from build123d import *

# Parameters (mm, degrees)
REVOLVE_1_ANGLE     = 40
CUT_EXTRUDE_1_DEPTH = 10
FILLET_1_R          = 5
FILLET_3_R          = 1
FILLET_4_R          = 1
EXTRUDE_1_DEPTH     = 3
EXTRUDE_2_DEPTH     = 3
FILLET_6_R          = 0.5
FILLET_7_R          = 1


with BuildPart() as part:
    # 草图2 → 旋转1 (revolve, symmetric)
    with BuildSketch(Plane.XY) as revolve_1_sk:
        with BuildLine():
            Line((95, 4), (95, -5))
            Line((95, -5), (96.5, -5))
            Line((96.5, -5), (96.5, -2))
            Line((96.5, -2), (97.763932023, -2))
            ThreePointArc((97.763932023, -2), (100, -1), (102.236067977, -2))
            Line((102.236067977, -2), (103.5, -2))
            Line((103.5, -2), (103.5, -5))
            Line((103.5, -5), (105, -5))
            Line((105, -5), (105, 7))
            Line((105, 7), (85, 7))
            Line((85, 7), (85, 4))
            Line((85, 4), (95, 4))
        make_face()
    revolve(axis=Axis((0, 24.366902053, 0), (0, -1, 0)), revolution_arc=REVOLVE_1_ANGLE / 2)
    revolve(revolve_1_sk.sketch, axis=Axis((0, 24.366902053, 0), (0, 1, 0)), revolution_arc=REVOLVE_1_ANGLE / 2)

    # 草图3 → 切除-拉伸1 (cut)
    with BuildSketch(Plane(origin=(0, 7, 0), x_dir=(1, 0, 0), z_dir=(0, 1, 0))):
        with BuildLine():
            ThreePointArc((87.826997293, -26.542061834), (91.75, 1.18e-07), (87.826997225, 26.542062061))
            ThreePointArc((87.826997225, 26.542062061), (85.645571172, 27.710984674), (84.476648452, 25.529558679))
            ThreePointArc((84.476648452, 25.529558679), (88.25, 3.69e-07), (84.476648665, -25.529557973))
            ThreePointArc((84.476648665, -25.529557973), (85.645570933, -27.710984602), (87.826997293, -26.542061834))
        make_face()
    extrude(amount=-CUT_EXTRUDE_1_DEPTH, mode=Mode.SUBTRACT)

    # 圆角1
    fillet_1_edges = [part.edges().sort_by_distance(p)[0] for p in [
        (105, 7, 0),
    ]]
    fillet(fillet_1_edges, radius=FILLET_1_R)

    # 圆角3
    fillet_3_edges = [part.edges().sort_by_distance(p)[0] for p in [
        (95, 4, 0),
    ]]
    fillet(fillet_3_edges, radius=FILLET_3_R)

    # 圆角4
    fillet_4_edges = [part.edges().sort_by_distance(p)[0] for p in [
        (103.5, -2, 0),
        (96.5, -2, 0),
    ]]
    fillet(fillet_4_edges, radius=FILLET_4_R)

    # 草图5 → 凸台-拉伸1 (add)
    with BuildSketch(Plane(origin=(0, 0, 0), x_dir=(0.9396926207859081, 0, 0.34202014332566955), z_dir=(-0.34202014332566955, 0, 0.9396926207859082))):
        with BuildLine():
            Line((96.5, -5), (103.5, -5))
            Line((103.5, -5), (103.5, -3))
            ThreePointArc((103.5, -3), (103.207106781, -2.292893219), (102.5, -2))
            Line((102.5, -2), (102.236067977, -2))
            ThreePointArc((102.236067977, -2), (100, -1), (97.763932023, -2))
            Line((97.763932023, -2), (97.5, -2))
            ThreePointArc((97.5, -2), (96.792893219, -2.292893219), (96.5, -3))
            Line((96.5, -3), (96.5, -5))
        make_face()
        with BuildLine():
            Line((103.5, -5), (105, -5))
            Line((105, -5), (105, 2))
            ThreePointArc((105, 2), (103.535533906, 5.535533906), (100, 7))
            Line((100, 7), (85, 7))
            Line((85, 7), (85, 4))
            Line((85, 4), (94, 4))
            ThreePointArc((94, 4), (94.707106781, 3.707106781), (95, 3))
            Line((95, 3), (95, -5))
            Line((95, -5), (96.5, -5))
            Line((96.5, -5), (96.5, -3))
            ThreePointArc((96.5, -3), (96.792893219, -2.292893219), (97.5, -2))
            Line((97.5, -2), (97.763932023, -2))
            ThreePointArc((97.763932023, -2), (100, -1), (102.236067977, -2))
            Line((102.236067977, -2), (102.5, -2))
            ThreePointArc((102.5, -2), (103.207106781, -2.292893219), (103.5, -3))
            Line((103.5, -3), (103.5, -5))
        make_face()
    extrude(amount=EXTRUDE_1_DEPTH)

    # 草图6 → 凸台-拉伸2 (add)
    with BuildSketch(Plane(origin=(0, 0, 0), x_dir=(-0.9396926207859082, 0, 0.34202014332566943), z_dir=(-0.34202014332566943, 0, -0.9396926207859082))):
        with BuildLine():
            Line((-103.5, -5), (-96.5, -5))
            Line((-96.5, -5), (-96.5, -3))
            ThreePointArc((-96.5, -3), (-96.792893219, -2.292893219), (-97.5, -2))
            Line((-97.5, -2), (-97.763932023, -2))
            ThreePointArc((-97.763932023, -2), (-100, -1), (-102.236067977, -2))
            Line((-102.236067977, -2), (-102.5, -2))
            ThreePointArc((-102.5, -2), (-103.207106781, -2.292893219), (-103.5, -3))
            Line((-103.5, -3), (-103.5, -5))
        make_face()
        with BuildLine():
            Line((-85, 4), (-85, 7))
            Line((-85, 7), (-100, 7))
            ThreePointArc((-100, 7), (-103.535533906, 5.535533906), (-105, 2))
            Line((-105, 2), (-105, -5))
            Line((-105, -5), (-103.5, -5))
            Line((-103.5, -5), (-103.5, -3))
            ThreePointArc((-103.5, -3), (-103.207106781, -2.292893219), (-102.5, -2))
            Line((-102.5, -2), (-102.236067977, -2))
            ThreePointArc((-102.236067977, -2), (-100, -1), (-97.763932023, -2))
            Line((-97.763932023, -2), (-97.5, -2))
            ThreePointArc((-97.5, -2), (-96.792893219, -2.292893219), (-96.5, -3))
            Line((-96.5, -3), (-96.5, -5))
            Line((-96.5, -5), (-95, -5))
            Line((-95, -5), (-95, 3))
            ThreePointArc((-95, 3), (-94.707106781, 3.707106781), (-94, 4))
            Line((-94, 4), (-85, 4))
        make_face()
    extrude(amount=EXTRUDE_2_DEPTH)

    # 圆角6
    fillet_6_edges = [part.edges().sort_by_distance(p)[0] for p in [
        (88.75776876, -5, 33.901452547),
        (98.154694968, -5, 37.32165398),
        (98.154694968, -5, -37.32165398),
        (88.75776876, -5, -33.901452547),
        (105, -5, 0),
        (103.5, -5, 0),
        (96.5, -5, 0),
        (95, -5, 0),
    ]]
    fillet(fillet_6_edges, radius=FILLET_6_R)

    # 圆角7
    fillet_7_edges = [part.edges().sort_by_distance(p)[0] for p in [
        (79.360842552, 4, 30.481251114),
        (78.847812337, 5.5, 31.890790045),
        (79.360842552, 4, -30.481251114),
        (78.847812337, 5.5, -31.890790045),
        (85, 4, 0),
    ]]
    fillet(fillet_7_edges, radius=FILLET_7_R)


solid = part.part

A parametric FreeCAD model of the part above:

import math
import FreeCAD as App
import Part
import Sketcher

V = App.Vector


def edges_at(feature, points):
    """Names of the edges that pass closest to the given points."""
    edges = feature.Shape.Edges
    near = lambda p: min(range(len(edges)), key=lambda i: edges[i].distToShape(Part.Vertex(*p))[0])
    return sorted({f"Edge{near(p) + 1}" for p in points})

doc = App.newDocument("Part")
params = doc.addObject("Spreadsheet::Sheet", "Params")
for row, (alias, value) in enumerate([
    ("sketch1_radius", "3 mm"),
    ("sketch1_width", "20 mm"),
    ("sketch1_width2", "10 mm"),
    ("sketch1_height", "9 mm"),
    ("sketch1_height2", "3 mm"),
    ("revolution_angle", "20 deg"),
    ("sketch2_radius", "3 mm"),
    ("sketch2_width", "20 mm"),
    ("sketch2_width2", "10 mm"),
    ("sketch2_height", "9 mm"),
    ("sketch2_height2", "3 mm"),
    ("revolution2_angle", "20 deg"),
    ("sketch3_radius", "91.75 mm"),
    ("sketch3_radius2", "1.75 mm"),
    ("pocket1_length", "10 mm"),
    ("fillet_radius", "5 mm"),
    ("fillet2_radius", "1 mm"),
    ("fillet3_radius", "1 mm"),
    ("sketch4_radius", "5 mm"),
    ("sketch4_radius2", "1 mm"),
    ("sketch4_width", "15 mm"),
    ("sketch4_width2", "9 mm"),
    ("sketch4_height", "7 mm"),
    ("pad1_length", "3 mm"),
    ("sketch5_radius", "1 mm"),
    ("sketch5_radius2", "5 mm"),
    ("sketch5_width", "9 mm"),
    ("sketch5_width2", "15 mm"),
    ("sketch5_height", "8 mm"),
    ("pad2_length", "3 mm"),
    ("fillet4_radius", "0.5 mm"),
    ("fillet5_radius", "1 mm"),
], start=1):
    params.set(f"A{row}", alias)
    params.set(f"B{row}", "=" + value)
    params.setAlias(f"B{row}", alias)

body = doc.addObject("PartDesign::Body", "Body")

# Sketch on XY plane
sketch1 = body.newObject("Sketcher::SketchObject", "Sketch")
sketch1.AttachmentSupport = (doc.getObject("XY_Plane"), [""])
sketch1.MapMode = "FlatFace"
sketch1.addGeometry(Part.LineSegment(V(95, 4, 0), V(95, -5, 0)), False)
sketch1.addGeometry(Part.LineSegment(V(95, -5, 0), V(96.5, -5, 0)), False)
sketch1.addGeometry(Part.LineSegment(V(96.5, -5, 0), V(96.5, -2, 0)), False)
sketch1.addGeometry(Part.LineSegment(V(96.5, -2, 0), V(97.8, -2, 0)), False)
sketch1.addGeometry(Part.ArcOfCircle(Part.Circle(V(100, -4, 0), V(0, 0, 1), 3), math.radians(42), math.radians(138)), False)
sketch1.addGeometry(Part.LineSegment(V(102.2, -2, 0), V(103.5, -2, 0)), False)
sketch1.addGeometry(Part.LineSegment(V(103.5, -2, 0), V(103.5, -5, 0)), False)
sketch1.addGeometry(Part.LineSegment(V(103.5, -5, 0), V(105, -5, 0)), False)
sketch1.addGeometry(Part.LineSegment(V(105, -5, 0), V(105, 7, 0)), False)
sketch1.addGeometry(Part.LineSegment(V(105, 7, 0), V(85, 7, 0)), False)
sketch1.addGeometry(Part.LineSegment(V(85, 7, 0), V(85, 4, 0)), False)
sketch1.addGeometry(Part.LineSegment(V(85, 4, 0), V(95, 4, 0)), False)
sketch1.addConstraint(Sketcher.Constraint("Coincident", 0, 2, 1, 1))
sketch1.addConstraint(Sketcher.Constraint("Coincident", 1, 2, 2, 1))
sketch1.addConstraint(Sketcher.Constraint("Coincident", 2, 2, 3, 1))
sketch1.addConstraint(Sketcher.Constraint("Coincident", 3, 2, 4, 2))
sketch1.addConstraint(Sketcher.Constraint("Coincident", 4, 1, 5, 1))
sketch1.addConstraint(Sketcher.Constraint("Coincident", 5, 2, 6, 1))
sketch1.addConstraint(Sketcher.Constraint("Coincident", 6, 2, 7, 1))
sketch1.addConstraint(Sketcher.Constraint("Coincident", 7, 2, 8, 1))
sketch1.addConstraint(Sketcher.Constraint("Coincident", 8, 2, 9, 1))
sketch1.addConstraint(Sketcher.Constraint("Coincident", 9, 2, 10, 1))
sketch1.addConstraint(Sketcher.Constraint("Coincident", 10, 2, 11, 1))
sketch1.addConstraint(Sketcher.Constraint("Coincident", 11, 2, 0, 1))
sketch1.addConstraint(Sketcher.Constraint("Vertical", 0))
sketch1.addConstraint(Sketcher.Constraint("Horizontal", 1))
sketch1.addConstraint(Sketcher.Constraint("Vertical", 2))
sketch1.addConstraint(Sketcher.Constraint("Horizontal", 3))
sketch1.addConstraint(Sketcher.Constraint("Horizontal", 5))
sketch1.addConstraint(Sketcher.Constraint("Vertical", 6))
sketch1.addConstraint(Sketcher.Constraint("Horizontal", 7))
sketch1.addConstraint(Sketcher.Constraint("Vertical", 8))
sketch1.addConstraint(Sketcher.Constraint("Horizontal", 9))
sketch1.addConstraint(Sketcher.Constraint("Vertical", 10))
sketch1.addConstraint(Sketcher.Constraint("Horizontal", 11))
sketch1.addConstraint(Sketcher.Constraint("Horizontal", 3, 2, 4, 1))
sketch1.addConstraint(Sketcher.Constraint("Horizontal", 1, 2, 6, 2))
sketch1.addConstraint(Sketcher.Constraint("Equal", 3, 5))
sketch1.addConstraint(Sketcher.Constraint("Equal", 1, 7))
sketch1.addConstraint(Sketcher.Constraint("Equal", 6, 10))
sketch1.addConstraint(Sketcher.Constraint("Radius", 4, 3.0))
sketch1.addConstraint(Sketcher.Constraint("DistanceX", 9, 2, 9, 1, 20.0))
sketch1.addConstraint(Sketcher.Constraint("DistanceX", 11, 1, 11, 2, 10.0))
sketch1.addConstraint(Sketcher.Constraint("DistanceY", 0, 2, 0, 1, 9.0))
sketch1.addConstraint(Sketcher.Constraint("DistanceY", 2, 1, 2, 2, 3.0))
sketch1.addConstraint(Sketcher.Constraint("DistanceX", 1, 1, 1, 2, 1.5))
sketch1.addConstraint(Sketcher.Constraint("DistanceX", -1, 1, 4, 3, 100.0))
sketch1.addConstraint(Sketcher.Constraint("DistanceY", 4, 3, -1, 1, 4.0))
sketch1.addConstraint(Sketcher.Constraint("DistanceY", 0, 2, -1, 1, 5.0))
sketch1.setExpression("Constraints[28]", "Params.sketch1_radius")
sketch1.setExpression("Constraints[29]", "Params.sketch1_width")
sketch1.setExpression("Constraints[30]", "Params.sketch1_width2")
sketch1.setExpression("Constraints[31]", "Params.sketch1_height")
sketch1.setExpression("Constraints[32]", "Params.sketch1_height2")
revolution = body.newObject("PartDesign::Revolution", "Revolution")
revolution.Profile = sketch1
revolution.ReferenceAxis = (sketch1, ["V_Axis"])
revolution.setExpression("Angle", "Params.revolution_angle")
revolution.Reversed = True

# Sketch on XY plane
sketch2 = body.newObject("Sketcher::SketchObject", "Sketch001")
sketch2.AttachmentSupport = (doc.getObject("XY_Plane"), [""])
sketch2.MapMode = "FlatFace"
sketch2.addGeometry(Part.LineSegment(V(95, 4, 0), V(95, -5, 0)), False)
sketch2.addGeometry(Part.LineSegment(V(95, -5, 0), V(96.5, -5, 0)), False)
sketch2.addGeometry(Part.LineSegment(V(96.5, -5, 0), V(96.5, -2, 0)), False)
sketch2.addGeometry(Part.LineSegment(V(96.5, -2, 0), V(97.8, -2, 0)), False)
sketch2.addGeometry(Part.ArcOfCircle(Part.Circle(V(100, -4, 0), V(0, 0, 1), 3), math.radians(42), math.radians(138)), False)
sketch2.addGeometry(Part.LineSegment(V(102.2, -2, 0), V(103.5, -2, 0)), False)
sketch2.addGeometry(Part.LineSegment(V(103.5, -2, 0), V(103.5, -5, 0)), False)
sketch2.addGeometry(Part.LineSegment(V(103.5, -5, 0), V(105, -5, 0)), False)
sketch2.addGeometry(Part.LineSegment(V(105, -5, 0), V(105, 7, 0)), False)
sketch2.addGeometry(Part.LineSegment(V(105, 7, 0), V(85, 7, 0)), False)
sketch2.addGeometry(Part.LineSegment(V(85, 7, 0), V(85, 4, 0)), False)
sketch2.addGeometry(Part.LineSegment(V(85, 4, 0), V(95, 4, 0)), False)
sketch2.addConstraint(Sketcher.Constraint("Coincident", 0, 2, 1, 1))
sketch2.addConstraint(Sketcher.Constraint("Coincident", 1, 2, 2, 1))
sketch2.addConstraint(Sketcher.Constraint("Coincident", 2, 2, 3, 1))
sketch2.addConstraint(Sketcher.Constraint("Coincident", 3, 2, 4, 2))
sketch2.addConstraint(Sketcher.Constraint("Coincident", 4, 1, 5, 1))
sketch2.addConstraint(Sketcher.Constraint("Coincident", 5, 2, 6, 1))
sketch2.addConstraint(Sketcher.Constraint("Coincident", 6, 2, 7, 1))
sketch2.addConstraint(Sketcher.Constraint("Coincident", 7, 2, 8, 1))
sketch2.addConstraint(Sketcher.Constraint("Coincident", 8, 2, 9, 1))
sketch2.addConstraint(Sketcher.Constraint("Coincident", 9, 2, 10, 1))
sketch2.addConstraint(Sketcher.Constraint("Coincident", 10, 2, 11, 1))
sketch2.addConstraint(Sketcher.Constraint("Coincident", 11, 2, 0, 1))
sketch2.addConstraint(Sketcher.Constraint("Vertical", 0))
sketch2.addConstraint(Sketcher.Constraint("Horizontal", 1))
sketch2.addConstraint(Sketcher.Constraint("Vertical", 2))
sketch2.addConstraint(Sketcher.Constraint("Horizontal", 3))
sketch2.addConstraint(Sketcher.Constraint("Horizontal", 5))
sketch2.addConstraint(Sketcher.Constraint("Vertical", 6))
sketch2.addConstraint(Sketcher.Constraint("Horizontal", 7))
sketch2.addConstraint(Sketcher.Constraint("Vertical", 8))
sketch2.addConstraint(Sketcher.Constraint("Horizontal", 9))
sketch2.addConstraint(Sketcher.Constraint("Vertical", 10))
sketch2.addConstraint(Sketcher.Constraint("Horizontal", 11))
sketch2.addConstraint(Sketcher.Constraint("Horizontal", 3, 2, 4, 1))
sketch2.addConstraint(Sketcher.Constraint("Horizontal", 1, 2, 6, 2))
sketch2.addConstraint(Sketcher.Constraint("Equal", 3, 5))
sketch2.addConstraint(Sketcher.Constraint("Equal", 1, 7))
sketch2.addConstraint(Sketcher.Constraint("Equal", 6, 10))
sketch2.addConstraint(Sketcher.Constraint("Radius", 4, 3.0))
sketch2.addConstraint(Sketcher.Constraint("DistanceX", 9, 2, 9, 1, 20.0))
sketch2.addConstraint(Sketcher.Constraint("DistanceX", 11, 1, 11, 2, 10.0))
sketch2.addConstraint(Sketcher.Constraint("DistanceY", 0, 2, 0, 1, 9.0))
sketch2.addConstraint(Sketcher.Constraint("DistanceY", 2, 1, 2, 2, 3.0))
sketch2.addConstraint(Sketcher.Constraint("DistanceX", 1, 1, 1, 2, 1.5))
sketch2.addConstraint(Sketcher.Constraint("DistanceX", -1, 1, 4, 3, 100.0))
sketch2.addConstraint(Sketcher.Constraint("DistanceY", 4, 3, -1, 1, 4.0))
sketch2.addConstraint(Sketcher.Constraint("DistanceY", 0, 2, -1, 1, 5.0))
sketch2.setExpression("Constraints[28]", "Params.sketch2_radius")
sketch2.setExpression("Constraints[29]", "Params.sketch2_width")
sketch2.setExpression("Constraints[30]", "Params.sketch2_width2")
sketch2.setExpression("Constraints[31]", "Params.sketch2_height")
sketch2.setExpression("Constraints[32]", "Params.sketch2_height2")
revolution2 = body.newObject("PartDesign::Revolution", "Revolution001")
revolution2.Profile = sketch2
revolution2.ReferenceAxis = (sketch2, ["V_Axis"])
revolution2.setExpression("Angle", "Params.revolution2_angle")

# Sketch on XZ plane
sketch3 = body.newObject("Sketcher::SketchObject", "Sketch002")
sketch3.AttachmentSupport = (doc.getObject("XZ_Plane"), [""])
sketch3.MapMode = "FlatFace"
sketch3.AttachmentOffset = App.Placement(V(0, 0, -7), App.Rotation())
sketch3.addGeometry(Part.ArcOfCircle(Part.Circle(V(0, 0, 0), V(0, 0, 1), 91.7), math.radians(-17), math.radians(17)), False)
sketch3.addGeometry(Part.ArcOfCircle(Part.Circle(V(86.2, -26, 0), V(0, 0, 1), 1.8), math.radians(163), math.radians(343)), False)
sketch3.addGeometry(Part.ArcOfCircle(Part.Circle(V(0, 0, 0), V(0, 0, 1), 88.2), math.radians(-17), math.radians(17)), False)
sketch3.addGeometry(Part.ArcOfCircle(Part.Circle(V(86.2, 26, 0), V(0, 0, 1), 1.8), math.radians(17), math.radians(197)), False)
sketch3.addConstraint(Sketcher.Constraint("Tangent", 0, 1, 1, 2))
sketch3.addConstraint(Sketcher.Constraint("Tangent", 1, 1, 2, 1))
sketch3.addConstraint(Sketcher.Constraint("Tangent", 2, 2, 3, 2))
sketch3.addConstraint(Sketcher.Constraint("Tangent", 3, 1, 0, 2))
sketch3.addConstraint(Sketcher.Constraint("Coincident", 0, 3, -1, 1))
sketch3.addConstraint(Sketcher.Constraint("Coincident", 2, 3, -1, 1))
sketch3.addConstraint(Sketcher.Constraint("Vertical", 1, 3, 3, 3))
sketch3.addConstraint(Sketcher.Constraint("Radius", 0, 91.75))
sketch3.addConstraint(Sketcher.Constraint("Radius", 1, 1.75))
sketch3.addConstraint(Sketcher.Constraint("DistanceY", 1, 3, -1, 1, 26.03581))
sketch3.setExpression("Constraints[7]", "Params.sketch3_radius")
sketch3.setExpression("Constraints[8]", "Params.sketch3_radius2")
pocket1 = body.newObject("PartDesign::Pocket", "Pocket")
pocket1.Profile = sketch3
pocket1.setExpression("Length", "Params.pocket1_length")
pocket1.Reversed = True
doc.recompute()

fillet = body.newObject("PartDesign::Fillet", "Fillet")
fillet.Base = (pocket1, edges_at(pocket1, [(105, 7, 0)]))
fillet.setExpression("Radius", "Params.fillet_radius")
doc.recompute()

fillet2 = body.newObject("PartDesign::Fillet", "Fillet001")
fillet2.Base = (fillet, edges_at(fillet, [(95, 4, 0)]))
fillet2.setExpression("Radius", "Params.fillet2_radius")
doc.recompute()

fillet3 = body.newObject("PartDesign::Fillet", "Fillet002")
fillet3.Base = (fillet2, edges_at(fillet2, [(103.5, -2, 0), (96.5, -2, 0)]))
fillet3.setExpression("Radius", "Params.fillet3_radius")

# Sketch on an angled plane
sketch4 = body.newObject("Sketcher::SketchObject", "Sketch003")
sketch4.Placement = App.Placement(V(0, 0, 0), App.Rotation(V(0.939692621, 0, 0.342020143), V(0, 1, 0), V(-0.342020143, 0, 0.939692621), "ZXY"))
sketch4.addGeometry(Part.LineSegment(V(105, -5, 0), V(105, 2, 0)), False)
sketch4.addGeometry(Part.ArcOfCircle(Part.Circle(V(100, 2, 0), V(0, 0, 1), 5), math.radians(0), math.radians(90)), False)
sketch4.addGeometry(Part.LineSegment(V(100, 7, 0), V(85, 7, 0)), False)
sketch4.addGeometry(Part.LineSegment(V(85, 7, 0), V(85, 4, 0)), False)
sketch4.addGeometry(Part.LineSegment(V(85, 4, 0), V(94, 4, 0)), False)
sketch4.addGeometry(Part.ArcOfCircle(Part.Circle(V(94, 3, 0), V(0, 0, 1), 1), math.radians(0), math.radians(90)), False)
sketch4.addGeometry(Part.LineSegment(V(95, 3, 0), V(95, -5, 0)), False)
sketch4.addGeometry(Part.LineSegment(V(95, -5, 0), V(105, -5, 0)), False)
sketch4.addConstraint(Sketcher.Constraint("Tangent", 0, 2, 1, 1))
sketch4.addConstraint(Sketcher.Constraint("Tangent", 1, 2, 2, 1))
sketch4.addConstraint(Sketcher.Constraint("Coincident", 2, 2, 3, 1))
sketch4.addConstraint(Sketcher.Constraint("Coincident", 3, 2, 4, 1))
sketch4.addConstraint(Sketcher.Constraint("Tangent", 4, 2, 5, 2))
sketch4.addConstraint(Sketcher.Constraint("Tangent", 5, 1, 6, 1))
sketch4.addConstraint(Sketcher.Constraint("Coincident", 6, 2, 7, 1))
sketch4.addConstraint(Sketcher.Constraint("Coincident", 7, 2, 0, 1))
sketch4.addConstraint(Sketcher.Constraint("Vertical", 0))
sketch4.addConstraint(Sketcher.Constraint("Horizontal", 2))
sketch4.addConstraint(Sketcher.Constraint("Vertical", 3))
sketch4.addConstraint(Sketcher.Constraint("Horizontal", 4))
sketch4.addConstraint(Sketcher.Constraint("Vertical", 6))
sketch4.addConstraint(Sketcher.Constraint("Horizontal", 7))
sketch4.addConstraint(Sketcher.Constraint("Radius", 1, 5.0))
sketch4.addConstraint(Sketcher.Constraint("Radius", 5, 1.0))
sketch4.addConstraint(Sketcher.Constraint("DistanceX", 2, 2, 2, 1, 15.0))
sketch4.addConstraint(Sketcher.Constraint("DistanceX", 4, 1, 4, 2, 9.0))
sketch4.addConstraint(Sketcher.Constraint("DistanceY", 0, 1, 0, 2, 7.0))
sketch4.addConstraint(Sketcher.Constraint("DistanceY", 3, 2, 3, 1, 3.0))
sketch4.addConstraint(Sketcher.Constraint("DistanceX", -1, 1, 1, 3, 100.0))
sketch4.addConstraint(Sketcher.Constraint("DistanceY", -1, 1, 1, 3, 2.0))
sketch4.setExpression("Constraints[14]", "Params.sketch4_radius")
sketch4.setExpression("Constraints[15]", "Params.sketch4_radius2")
sketch4.setExpression("Constraints[16]", "Params.sketch4_width")
sketch4.setExpression("Constraints[17]", "Params.sketch4_width2")
sketch4.setExpression("Constraints[18]", "Params.sketch4_height")
pad1 = body.newObject("PartDesign::Pad", "Pad")
pad1.Profile = sketch4
pad1.setExpression("Length", "Params.pad1_length")

# Sketch on an angled plane
sketch5 = body.newObject("Sketcher::SketchObject", "Sketch004")
sketch5.Placement = App.Placement(V(0, 0, 0), App.Rotation(V(-0.939692621, 0, 0.342020143), V(0, 1, 0), V(-0.342020143, 0, -0.939692621), "ZXY"))
sketch5.addGeometry(Part.LineSegment(V(-95, -5, 0), V(-95, 3, 0)), False)
sketch5.addGeometry(Part.ArcOfCircle(Part.Circle(V(-94, 3, 0), V(0, 0, 1), 1), math.radians(90), math.radians(180)), False)
sketch5.addGeometry(Part.LineSegment(V(-94, 4, 0), V(-85, 4, 0)), False)
sketch5.addGeometry(Part.LineSegment(V(-85, 4, 0), V(-85, 7, 0)), False)
sketch5.addGeometry(Part.LineSegment(V(-85, 7, 0), V(-100, 7, 0)), False)
sketch5.addGeometry(Part.ArcOfCircle(Part.Circle(V(-100, 2, 0), V(0, 0, 1), 5), math.radians(90), math.radians(180)), False)
sketch5.addGeometry(Part.LineSegment(V(-105, 2, 0), V(-105, -5, 0)), False)
sketch5.addGeometry(Part.LineSegment(V(-105, -5, 0), V(-95, -5, 0)), False)
sketch5.addConstraint(Sketcher.Constraint("Tangent", 0, 2, 1, 2))
sketch5.addConstraint(Sketcher.Constraint("Tangent", 1, 1, 2, 1))
sketch5.addConstraint(Sketcher.Constraint("Coincident", 2, 2, 3, 1))
sketch5.addConstraint(Sketcher.Constraint("Coincident", 3, 2, 4, 1))
sketch5.addConstraint(Sketcher.Constraint("Tangent", 4, 2, 5, 1))
sketch5.addConstraint(Sketcher.Constraint("Tangent", 5, 2, 6, 1))
sketch5.addConstraint(Sketcher.Constraint("Coincident", 6, 2, 7, 1))
sketch5.addConstraint(Sketcher.Constraint("Coincident", 7, 2, 0, 1))
sketch5.addConstraint(Sketcher.Constraint("Vertical", 0))
sketch5.addConstraint(Sketcher.Constraint("Horizontal", 2))
sketch5.addConstraint(Sketcher.Constraint("Vertical", 3))
sketch5.addConstraint(Sketcher.Constraint("Horizontal", 4))
sketch5.addConstraint(Sketcher.Constraint("Vertical", 6))
sketch5.addConstraint(Sketcher.Constraint("Horizontal", 7))
sketch5.addConstraint(Sketcher.Constraint("Radius", 1, 1.0))
sketch5.addConstraint(Sketcher.Constraint("Radius", 5, 5.0))
sketch5.addConstraint(Sketcher.Constraint("DistanceX", 2, 1, 2, 2, 9.0))
sketch5.addConstraint(Sketcher.Constraint("DistanceX", 4, 2, 4, 1, 15.0))
sketch5.addConstraint(Sketcher.Constraint("DistanceY", 0, 1, 0, 2, 8.0))
sketch5.addConstraint(Sketcher.Constraint("DistanceY", 3, 1, 3, 2, 3.0))
sketch5.addConstraint(Sketcher.Constraint("DistanceX", 1, 3, -1, 1, 94.0))
sketch5.addConstraint(Sketcher.Constraint("DistanceY", -1, 1, 1, 3, 3.0))
sketch5.setExpression("Constraints[14]", "Params.sketch5_radius")
sketch5.setExpression("Constraints[15]", "Params.sketch5_radius2")
sketch5.setExpression("Constraints[16]", "Params.sketch5_width")
sketch5.setExpression("Constraints[17]", "Params.sketch5_width2")
sketch5.setExpression("Constraints[18]", "Params.sketch5_height")
pad2 = body.newObject("PartDesign::Pad", "Pad001")
pad2.Profile = sketch5
pad2.setExpression("Length", "Params.pad2_length")
doc.recompute()

fillet4 = body.newObject("PartDesign::Fillet", "Fillet003")
fillet4.Base = (pad2, edges_at(pad2, [
    (88.758, -5, 33.901),
    (98.155, -5, 37.322),
    (98.155, -5, -37.322),
    (88.758, -5, -33.901),
    (105, -5, 0),
    (103.5, -5, 0),
    (96.5, -5, 0),
    (95, -5, 0),
]))
fillet4.setExpression("Radius", "Params.fillet4_radius")
doc.recompute()

fillet5 = body.newObject("PartDesign::Fillet", "Fillet004")
fillet5.Base = (fillet4, edges_at(fillet4, [
    (79.361, 4, 30.481),
    (78.848, 5.5, 31.891),
    (79.361, 4, -30.481),
    (78.848, 5.5, -31.891),
    (85, 4, 0),
]))
fillet5.setExpression("Radius", "Params.fillet5_radius")

doc.recompute()
